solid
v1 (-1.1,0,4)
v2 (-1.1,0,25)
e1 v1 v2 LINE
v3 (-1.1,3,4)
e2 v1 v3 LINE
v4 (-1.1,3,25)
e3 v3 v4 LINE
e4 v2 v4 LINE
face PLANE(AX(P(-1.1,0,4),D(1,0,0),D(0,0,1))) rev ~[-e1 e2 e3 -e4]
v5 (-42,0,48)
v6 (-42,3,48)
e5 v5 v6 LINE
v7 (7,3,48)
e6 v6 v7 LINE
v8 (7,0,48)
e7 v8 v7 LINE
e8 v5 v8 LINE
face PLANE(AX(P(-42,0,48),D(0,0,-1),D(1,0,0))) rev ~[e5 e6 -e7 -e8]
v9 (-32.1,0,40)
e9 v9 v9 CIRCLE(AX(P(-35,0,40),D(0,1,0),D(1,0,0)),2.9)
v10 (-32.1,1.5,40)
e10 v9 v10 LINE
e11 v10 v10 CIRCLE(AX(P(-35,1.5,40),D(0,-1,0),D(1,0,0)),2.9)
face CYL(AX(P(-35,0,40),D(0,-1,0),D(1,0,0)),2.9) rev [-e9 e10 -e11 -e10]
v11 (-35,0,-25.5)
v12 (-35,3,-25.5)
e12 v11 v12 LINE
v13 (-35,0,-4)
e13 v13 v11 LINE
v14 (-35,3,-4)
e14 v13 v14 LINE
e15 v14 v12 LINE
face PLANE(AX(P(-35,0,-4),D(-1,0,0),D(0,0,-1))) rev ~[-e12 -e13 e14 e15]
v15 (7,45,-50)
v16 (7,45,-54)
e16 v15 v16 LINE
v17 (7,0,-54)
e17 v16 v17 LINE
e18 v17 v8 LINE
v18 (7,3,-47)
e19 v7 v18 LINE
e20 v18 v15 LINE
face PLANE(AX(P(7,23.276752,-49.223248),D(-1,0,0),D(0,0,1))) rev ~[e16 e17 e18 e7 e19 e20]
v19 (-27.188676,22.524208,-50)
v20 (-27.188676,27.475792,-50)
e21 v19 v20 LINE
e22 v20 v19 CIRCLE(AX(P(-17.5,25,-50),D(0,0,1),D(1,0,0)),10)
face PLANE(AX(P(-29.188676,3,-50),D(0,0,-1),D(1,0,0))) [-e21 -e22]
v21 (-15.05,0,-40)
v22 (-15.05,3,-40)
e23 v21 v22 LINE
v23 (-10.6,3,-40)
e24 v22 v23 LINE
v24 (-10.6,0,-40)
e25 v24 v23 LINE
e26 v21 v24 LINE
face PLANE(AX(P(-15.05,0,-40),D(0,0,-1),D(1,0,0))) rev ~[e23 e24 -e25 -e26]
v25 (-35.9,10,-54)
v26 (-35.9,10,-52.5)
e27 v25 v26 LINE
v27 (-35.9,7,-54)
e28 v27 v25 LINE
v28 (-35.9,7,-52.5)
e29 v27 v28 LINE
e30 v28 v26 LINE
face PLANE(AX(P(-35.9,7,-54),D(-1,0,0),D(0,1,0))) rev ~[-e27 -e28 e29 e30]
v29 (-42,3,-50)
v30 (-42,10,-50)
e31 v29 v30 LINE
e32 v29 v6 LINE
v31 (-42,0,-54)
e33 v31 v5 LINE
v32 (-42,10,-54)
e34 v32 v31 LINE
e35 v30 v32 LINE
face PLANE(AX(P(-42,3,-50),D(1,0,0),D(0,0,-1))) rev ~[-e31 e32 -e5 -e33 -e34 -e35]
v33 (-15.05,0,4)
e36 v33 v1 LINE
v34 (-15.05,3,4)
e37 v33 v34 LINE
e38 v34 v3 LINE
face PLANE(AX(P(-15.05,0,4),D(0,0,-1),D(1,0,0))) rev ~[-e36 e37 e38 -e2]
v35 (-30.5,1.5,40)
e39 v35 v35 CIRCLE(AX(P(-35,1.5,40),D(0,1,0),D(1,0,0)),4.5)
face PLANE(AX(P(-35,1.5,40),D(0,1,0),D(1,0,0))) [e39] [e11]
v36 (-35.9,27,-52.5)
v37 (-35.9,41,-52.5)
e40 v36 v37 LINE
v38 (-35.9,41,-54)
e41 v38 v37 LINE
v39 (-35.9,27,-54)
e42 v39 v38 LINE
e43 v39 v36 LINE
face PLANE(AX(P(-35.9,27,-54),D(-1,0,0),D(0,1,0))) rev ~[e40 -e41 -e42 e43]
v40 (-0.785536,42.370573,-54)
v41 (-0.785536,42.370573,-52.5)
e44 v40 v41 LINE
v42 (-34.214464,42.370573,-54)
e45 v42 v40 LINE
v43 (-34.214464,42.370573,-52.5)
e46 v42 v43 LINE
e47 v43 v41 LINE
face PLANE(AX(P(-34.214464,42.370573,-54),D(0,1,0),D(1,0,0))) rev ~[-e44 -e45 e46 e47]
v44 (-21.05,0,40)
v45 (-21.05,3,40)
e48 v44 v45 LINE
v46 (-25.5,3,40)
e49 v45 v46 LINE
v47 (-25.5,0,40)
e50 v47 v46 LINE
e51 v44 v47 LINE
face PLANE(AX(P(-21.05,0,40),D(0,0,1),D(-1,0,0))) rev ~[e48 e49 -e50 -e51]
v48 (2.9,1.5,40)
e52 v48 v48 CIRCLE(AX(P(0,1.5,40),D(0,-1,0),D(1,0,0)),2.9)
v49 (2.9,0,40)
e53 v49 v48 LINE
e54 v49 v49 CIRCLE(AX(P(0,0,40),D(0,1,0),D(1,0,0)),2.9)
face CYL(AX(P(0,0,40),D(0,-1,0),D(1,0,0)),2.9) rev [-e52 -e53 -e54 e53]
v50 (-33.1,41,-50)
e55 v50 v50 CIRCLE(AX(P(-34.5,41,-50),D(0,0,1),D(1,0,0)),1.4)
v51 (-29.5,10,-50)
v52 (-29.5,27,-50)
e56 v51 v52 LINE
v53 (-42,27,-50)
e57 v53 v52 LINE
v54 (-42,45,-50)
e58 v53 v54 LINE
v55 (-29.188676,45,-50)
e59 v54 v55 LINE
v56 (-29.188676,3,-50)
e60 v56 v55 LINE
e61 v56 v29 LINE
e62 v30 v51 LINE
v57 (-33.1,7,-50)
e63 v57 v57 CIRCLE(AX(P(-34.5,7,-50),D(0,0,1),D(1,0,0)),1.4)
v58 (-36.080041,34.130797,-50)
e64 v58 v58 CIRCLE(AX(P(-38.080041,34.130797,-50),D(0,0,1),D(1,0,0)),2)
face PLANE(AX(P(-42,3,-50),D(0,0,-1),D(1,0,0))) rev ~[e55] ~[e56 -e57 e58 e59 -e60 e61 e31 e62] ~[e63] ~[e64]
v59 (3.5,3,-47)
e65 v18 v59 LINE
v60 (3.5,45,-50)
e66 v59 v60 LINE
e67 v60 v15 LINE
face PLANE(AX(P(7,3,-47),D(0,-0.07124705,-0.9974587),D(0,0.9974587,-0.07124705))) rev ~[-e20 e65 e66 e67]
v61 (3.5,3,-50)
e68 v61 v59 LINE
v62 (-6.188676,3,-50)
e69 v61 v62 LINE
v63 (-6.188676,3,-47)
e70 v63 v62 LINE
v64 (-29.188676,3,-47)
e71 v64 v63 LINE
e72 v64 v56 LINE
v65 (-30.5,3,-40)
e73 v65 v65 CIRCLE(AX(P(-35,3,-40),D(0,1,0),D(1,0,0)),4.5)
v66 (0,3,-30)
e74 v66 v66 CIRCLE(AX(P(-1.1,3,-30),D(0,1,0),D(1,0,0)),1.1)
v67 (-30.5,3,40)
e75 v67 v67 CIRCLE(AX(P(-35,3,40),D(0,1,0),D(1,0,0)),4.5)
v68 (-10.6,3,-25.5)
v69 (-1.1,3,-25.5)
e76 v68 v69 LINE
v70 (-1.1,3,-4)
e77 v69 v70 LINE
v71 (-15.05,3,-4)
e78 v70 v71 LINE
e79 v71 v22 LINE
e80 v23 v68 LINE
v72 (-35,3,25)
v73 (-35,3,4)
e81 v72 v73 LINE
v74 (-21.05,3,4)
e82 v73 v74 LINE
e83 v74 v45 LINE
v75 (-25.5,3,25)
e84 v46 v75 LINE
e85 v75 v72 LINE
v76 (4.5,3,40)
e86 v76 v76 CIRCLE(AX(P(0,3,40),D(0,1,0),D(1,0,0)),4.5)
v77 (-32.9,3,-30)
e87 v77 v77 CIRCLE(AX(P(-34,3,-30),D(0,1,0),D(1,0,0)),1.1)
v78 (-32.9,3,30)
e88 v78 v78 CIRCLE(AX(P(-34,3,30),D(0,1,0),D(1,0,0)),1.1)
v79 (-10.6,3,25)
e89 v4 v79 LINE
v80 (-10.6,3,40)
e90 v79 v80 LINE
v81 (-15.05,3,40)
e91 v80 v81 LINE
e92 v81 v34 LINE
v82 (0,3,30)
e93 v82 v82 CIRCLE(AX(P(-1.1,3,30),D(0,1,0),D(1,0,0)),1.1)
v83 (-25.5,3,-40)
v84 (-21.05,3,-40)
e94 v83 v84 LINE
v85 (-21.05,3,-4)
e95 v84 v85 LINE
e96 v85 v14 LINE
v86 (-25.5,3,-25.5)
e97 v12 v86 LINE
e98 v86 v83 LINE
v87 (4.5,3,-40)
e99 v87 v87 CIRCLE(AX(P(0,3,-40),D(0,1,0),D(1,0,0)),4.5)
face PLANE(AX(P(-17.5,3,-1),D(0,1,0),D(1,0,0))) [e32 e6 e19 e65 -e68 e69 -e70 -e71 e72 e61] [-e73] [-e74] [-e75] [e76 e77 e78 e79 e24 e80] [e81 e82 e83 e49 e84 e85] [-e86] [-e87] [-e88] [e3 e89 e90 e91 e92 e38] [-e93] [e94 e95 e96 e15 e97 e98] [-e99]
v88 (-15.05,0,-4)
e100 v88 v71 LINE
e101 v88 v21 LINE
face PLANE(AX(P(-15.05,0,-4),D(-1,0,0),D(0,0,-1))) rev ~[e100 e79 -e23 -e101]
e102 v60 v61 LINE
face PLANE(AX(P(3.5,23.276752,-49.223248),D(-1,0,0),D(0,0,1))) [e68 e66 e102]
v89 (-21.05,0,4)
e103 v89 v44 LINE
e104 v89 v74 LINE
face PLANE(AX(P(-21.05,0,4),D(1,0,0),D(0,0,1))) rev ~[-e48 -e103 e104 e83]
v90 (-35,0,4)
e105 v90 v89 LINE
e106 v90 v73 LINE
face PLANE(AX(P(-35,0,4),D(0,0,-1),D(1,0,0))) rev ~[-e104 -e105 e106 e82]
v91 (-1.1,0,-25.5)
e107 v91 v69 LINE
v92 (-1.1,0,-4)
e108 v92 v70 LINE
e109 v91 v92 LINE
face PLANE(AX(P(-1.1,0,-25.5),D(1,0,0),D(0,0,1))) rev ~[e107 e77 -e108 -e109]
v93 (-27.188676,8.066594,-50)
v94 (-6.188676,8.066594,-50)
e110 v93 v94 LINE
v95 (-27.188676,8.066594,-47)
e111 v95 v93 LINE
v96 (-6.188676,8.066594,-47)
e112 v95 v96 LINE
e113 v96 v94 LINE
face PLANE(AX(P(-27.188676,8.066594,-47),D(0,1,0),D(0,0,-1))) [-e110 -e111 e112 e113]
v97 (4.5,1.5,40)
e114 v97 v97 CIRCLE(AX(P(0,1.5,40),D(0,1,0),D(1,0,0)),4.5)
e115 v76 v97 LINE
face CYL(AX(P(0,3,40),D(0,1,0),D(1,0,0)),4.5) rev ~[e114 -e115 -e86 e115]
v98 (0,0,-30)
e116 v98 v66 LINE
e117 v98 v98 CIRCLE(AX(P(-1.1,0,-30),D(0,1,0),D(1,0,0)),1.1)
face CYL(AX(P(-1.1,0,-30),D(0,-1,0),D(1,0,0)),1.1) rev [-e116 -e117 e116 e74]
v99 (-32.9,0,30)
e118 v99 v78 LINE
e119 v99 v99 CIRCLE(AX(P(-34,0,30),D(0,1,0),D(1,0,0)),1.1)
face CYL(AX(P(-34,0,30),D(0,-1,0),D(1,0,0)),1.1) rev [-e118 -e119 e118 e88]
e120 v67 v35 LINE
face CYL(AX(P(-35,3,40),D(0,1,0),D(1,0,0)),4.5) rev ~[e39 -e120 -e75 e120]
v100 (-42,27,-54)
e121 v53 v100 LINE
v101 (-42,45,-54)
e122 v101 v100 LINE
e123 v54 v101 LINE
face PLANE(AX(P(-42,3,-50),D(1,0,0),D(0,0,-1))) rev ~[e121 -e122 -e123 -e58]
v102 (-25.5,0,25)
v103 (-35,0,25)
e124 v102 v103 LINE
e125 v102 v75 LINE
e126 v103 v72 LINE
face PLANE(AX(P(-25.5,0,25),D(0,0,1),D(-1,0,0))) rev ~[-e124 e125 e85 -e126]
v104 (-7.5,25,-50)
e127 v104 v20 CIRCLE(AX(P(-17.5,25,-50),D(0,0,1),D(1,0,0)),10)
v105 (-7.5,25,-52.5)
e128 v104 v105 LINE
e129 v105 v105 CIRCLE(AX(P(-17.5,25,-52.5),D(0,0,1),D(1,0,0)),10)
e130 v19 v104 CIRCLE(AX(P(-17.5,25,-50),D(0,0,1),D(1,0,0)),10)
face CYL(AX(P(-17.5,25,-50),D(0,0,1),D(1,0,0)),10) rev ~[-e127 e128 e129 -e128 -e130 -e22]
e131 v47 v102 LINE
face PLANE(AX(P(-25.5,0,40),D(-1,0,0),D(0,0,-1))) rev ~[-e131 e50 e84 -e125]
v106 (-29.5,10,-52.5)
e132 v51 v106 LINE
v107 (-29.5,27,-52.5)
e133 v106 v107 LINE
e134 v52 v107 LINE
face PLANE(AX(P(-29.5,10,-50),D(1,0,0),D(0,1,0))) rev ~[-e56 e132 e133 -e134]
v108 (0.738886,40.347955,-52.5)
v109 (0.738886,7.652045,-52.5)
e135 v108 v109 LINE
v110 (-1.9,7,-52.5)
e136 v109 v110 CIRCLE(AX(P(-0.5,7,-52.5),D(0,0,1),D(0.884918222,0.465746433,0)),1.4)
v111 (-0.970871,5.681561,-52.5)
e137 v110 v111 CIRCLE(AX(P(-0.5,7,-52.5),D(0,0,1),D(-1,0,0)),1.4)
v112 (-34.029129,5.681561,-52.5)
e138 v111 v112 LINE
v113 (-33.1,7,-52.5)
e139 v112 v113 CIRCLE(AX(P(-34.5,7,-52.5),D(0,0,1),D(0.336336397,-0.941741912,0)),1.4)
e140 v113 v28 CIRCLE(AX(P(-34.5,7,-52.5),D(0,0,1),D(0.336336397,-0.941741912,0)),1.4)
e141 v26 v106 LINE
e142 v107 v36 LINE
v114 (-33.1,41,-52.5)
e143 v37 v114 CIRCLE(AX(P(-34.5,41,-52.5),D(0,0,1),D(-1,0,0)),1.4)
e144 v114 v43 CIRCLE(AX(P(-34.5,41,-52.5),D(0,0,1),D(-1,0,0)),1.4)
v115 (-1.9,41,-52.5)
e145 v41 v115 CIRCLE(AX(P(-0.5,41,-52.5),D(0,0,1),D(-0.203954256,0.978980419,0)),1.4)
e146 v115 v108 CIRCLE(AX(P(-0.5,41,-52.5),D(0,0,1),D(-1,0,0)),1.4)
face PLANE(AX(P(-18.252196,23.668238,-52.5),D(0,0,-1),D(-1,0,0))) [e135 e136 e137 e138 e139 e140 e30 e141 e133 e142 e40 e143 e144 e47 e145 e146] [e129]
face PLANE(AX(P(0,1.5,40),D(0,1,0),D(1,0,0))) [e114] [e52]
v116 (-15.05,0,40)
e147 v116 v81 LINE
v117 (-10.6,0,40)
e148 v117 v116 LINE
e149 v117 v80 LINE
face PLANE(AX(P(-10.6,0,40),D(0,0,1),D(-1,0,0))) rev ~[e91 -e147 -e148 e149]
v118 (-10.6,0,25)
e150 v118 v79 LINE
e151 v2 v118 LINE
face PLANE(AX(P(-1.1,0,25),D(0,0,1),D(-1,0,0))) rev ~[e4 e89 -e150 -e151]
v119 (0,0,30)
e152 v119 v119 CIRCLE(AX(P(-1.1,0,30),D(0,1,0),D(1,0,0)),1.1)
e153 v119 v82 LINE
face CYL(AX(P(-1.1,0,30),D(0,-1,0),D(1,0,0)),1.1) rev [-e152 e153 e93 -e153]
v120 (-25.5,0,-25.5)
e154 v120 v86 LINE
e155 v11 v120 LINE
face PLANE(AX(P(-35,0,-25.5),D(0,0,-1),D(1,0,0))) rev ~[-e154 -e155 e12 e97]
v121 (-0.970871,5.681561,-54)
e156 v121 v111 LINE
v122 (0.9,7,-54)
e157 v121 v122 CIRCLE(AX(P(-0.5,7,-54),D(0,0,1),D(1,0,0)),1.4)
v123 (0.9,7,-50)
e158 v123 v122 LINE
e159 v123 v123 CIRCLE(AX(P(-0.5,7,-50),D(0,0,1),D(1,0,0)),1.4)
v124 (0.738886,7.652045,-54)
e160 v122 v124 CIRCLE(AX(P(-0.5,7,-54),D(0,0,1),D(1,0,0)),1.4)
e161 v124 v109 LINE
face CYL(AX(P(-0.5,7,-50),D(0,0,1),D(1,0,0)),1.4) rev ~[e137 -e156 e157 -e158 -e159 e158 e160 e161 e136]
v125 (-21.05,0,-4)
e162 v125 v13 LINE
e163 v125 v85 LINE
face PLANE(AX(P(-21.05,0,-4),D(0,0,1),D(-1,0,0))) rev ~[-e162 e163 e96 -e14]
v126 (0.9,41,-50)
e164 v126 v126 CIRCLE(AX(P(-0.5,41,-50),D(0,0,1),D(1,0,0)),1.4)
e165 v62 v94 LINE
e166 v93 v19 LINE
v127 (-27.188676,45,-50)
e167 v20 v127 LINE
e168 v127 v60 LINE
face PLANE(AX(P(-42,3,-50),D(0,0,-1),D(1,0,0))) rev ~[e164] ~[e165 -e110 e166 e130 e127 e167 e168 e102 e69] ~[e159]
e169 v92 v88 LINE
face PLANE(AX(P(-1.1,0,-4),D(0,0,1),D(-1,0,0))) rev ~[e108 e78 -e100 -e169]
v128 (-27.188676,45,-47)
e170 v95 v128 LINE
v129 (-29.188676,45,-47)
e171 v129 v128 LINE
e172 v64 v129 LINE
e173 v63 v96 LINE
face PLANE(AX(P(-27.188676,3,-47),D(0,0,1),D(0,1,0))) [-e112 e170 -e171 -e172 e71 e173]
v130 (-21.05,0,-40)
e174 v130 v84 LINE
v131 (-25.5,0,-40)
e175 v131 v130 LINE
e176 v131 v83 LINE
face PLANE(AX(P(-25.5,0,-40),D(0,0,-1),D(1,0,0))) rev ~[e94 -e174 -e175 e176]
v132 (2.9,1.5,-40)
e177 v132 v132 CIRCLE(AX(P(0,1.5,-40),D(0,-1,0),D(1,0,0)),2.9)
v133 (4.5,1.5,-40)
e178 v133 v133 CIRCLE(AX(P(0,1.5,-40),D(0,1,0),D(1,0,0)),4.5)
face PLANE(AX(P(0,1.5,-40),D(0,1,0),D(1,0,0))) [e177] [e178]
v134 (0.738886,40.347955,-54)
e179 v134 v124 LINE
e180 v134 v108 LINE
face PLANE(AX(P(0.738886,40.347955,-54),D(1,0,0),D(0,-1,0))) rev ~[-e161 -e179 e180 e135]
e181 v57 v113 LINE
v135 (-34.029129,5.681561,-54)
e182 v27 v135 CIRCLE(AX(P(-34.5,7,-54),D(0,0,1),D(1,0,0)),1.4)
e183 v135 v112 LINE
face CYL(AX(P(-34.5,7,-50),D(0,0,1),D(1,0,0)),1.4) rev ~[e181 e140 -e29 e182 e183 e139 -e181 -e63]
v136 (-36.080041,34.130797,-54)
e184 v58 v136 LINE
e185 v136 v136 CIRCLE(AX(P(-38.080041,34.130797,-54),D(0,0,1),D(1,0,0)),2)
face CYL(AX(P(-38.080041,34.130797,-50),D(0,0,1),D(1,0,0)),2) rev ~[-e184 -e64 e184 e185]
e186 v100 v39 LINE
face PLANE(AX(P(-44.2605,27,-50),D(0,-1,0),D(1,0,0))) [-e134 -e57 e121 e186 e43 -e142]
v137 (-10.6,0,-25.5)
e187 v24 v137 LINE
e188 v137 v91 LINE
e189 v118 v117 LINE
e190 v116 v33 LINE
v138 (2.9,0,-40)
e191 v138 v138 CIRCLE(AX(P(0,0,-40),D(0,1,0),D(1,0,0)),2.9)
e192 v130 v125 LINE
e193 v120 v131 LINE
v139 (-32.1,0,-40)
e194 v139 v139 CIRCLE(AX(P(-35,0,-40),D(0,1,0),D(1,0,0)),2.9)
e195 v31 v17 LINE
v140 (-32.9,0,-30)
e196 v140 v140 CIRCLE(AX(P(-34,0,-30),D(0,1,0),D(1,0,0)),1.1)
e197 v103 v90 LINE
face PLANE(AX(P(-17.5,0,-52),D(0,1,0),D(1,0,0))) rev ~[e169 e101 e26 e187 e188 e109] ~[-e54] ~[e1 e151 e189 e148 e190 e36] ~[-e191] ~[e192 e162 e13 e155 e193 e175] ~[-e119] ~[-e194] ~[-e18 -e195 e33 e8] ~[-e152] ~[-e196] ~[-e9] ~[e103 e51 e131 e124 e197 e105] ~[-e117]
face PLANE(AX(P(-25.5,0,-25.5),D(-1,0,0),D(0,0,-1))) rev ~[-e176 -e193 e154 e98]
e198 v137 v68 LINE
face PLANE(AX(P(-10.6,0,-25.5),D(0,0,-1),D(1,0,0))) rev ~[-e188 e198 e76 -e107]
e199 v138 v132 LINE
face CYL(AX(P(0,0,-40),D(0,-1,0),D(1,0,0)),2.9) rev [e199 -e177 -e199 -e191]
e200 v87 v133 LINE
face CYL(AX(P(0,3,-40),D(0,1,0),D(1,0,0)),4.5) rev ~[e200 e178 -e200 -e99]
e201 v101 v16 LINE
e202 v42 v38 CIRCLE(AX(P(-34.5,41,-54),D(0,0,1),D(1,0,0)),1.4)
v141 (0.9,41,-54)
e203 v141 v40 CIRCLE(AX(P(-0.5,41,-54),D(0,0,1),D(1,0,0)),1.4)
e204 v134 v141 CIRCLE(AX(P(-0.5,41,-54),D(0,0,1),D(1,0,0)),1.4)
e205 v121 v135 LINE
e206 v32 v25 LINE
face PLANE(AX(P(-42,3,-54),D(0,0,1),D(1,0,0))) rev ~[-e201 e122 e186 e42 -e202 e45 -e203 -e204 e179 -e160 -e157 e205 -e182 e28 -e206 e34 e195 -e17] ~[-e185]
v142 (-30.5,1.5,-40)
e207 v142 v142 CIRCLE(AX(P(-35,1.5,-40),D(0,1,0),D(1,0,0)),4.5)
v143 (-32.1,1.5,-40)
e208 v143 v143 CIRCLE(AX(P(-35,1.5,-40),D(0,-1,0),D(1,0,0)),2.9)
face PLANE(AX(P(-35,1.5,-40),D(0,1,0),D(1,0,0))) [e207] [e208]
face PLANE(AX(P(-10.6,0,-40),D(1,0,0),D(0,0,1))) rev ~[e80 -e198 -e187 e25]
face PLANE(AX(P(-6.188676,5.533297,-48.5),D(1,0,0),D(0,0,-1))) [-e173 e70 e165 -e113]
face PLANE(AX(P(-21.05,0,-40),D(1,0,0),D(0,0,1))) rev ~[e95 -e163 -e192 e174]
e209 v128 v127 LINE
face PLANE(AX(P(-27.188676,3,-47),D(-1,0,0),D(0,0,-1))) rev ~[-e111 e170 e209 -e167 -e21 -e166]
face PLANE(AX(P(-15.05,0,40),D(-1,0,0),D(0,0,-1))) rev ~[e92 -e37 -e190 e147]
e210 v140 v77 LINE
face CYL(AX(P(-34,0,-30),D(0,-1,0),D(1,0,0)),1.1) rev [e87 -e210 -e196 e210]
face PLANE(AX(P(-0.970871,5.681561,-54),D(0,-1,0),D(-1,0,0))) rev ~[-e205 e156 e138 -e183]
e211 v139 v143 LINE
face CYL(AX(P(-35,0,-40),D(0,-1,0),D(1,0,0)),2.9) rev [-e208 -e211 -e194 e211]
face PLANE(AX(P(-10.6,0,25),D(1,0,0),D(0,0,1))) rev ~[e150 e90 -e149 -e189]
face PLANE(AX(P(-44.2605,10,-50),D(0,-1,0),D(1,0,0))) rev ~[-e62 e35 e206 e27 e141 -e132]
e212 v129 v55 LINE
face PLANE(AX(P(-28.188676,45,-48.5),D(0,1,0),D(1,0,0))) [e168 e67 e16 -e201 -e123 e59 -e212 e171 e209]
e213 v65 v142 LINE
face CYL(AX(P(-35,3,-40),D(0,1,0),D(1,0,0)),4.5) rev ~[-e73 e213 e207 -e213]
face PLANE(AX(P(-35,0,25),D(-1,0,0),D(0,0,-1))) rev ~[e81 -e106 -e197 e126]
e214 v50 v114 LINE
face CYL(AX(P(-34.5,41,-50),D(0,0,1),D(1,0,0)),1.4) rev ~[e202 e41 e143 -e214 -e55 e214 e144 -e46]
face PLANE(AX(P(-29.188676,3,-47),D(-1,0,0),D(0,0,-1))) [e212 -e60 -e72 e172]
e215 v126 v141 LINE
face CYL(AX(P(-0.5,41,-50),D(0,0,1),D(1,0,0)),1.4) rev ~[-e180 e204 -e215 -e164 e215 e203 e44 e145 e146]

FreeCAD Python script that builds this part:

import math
import FreeCAD as App
import Part
import Sketcher
from FreeCAD import Vector
Q = App.Units.Quantity

doc = App.newDocument("Part")
params = doc.addObject("Spreadsheet::Sheet", "Params")
for row, (alias, value) in enumerate([
    ("sketch1_diameter", "5.8 mm"),
    ("sketch1_diameter2", "2.2 mm"),
    ("sketch1_width", "49 mm"),
    ("sketch1_height", "98 mm"),
    ("sketch1_height2", "21 mm"),
    ("pad1_length", "3 mm"),
    ("sketch2_diameter", "9 mm"),
    ("pocket1_length", "1.5 mm"),
    ("sketch3_width", "49 mm"),
    ("sketch3_height", "4 mm"),
    ("pad2_length", "42 mm"),
    ("pad2_length2", "3 mm"),
    ("sketch4_diameter", "20 mm"),
    ("sketch4_diameter2", "4 mm"),
    ("sketch4_diameter3", "2.8 mm"),
    ("sketch4_height", "17 mm"),
    ("sketch5_diameter", "20 mm"),
    ("sketch5_radius", "1.4 mm"),
    ("sketch5_height", "3 mm"),
    ("sketch5_height2", "17 mm"),
    ("sketch5_height3", "14 mm"),
    ("pocket3_length", "1.5 mm"),
    ("sketch6_width", "42 mm"),
    ("sketch6_height", "3 mm"),
    ("pad3_length", "3.5 mm"),
    ("sketch7_width", "2 mm"),
    ("sketch7_height", "3 mm"),
    ("pad4_length", "42 mm"),
    ("sketch8_height", "3 mm"),
    ("pad5_length", "21 mm"),
], start=1):
    params.set(f"A{row}", alias)
    params.set(f"B{row}", "=" + value)
    params.setAlias(f"B{row}", alias)

body = doc.addObject("PartDesign::Body", "Body")

sketch1 = doc.addObject("Sketcher::SketchObject", "Sketch")
body.addObject(sketch1)
sketch1.AttachmentSupport = (doc.XZ_Plane, [""])
sketch1.MapMode = "FlatFace"
sketch1.addGeometry([
    Part.LineSegment(Vector(-42, 48, 0), Vector(7, 48, 0)),
    Part.LineSegment(Vector(7, 48, 0), Vector(7, -50, 0)),
    Part.LineSegment(Vector(7, -50, 0), Vector(-42, -50, 0)),
    Part.LineSegment(Vector(-42, -50, 0), Vector(-42, 48, 0)),
    Part.Circle(Vector(-35, 40, 0), Vector(0, 0, 1), 2.9),
    Part.Circle(Vector(-34, 30, 0), Vector(0, 0, 1), 1.1),
    Part.LineSegment(Vector(-25.5, 25, 0), Vector(-35, 25, 0)),
    Part.LineSegment(Vector(-35, 25, 0), Vector(-35, 4, 0)),
    Part.LineSegment(Vector(-35, 4, 0), Vector(-21.1, 4, 0)),
    Part.LineSegment(Vector(-21.1, 4, 0), Vector(-21.1, 40, 0)),
    Part.LineSegment(Vector(-21.1, 40, 0), Vector(-25.5, 40, 0)),
    Part.LineSegment(Vector(-25.5, 40, 0), Vector(-25.5, 25, 0)),
    Part.LineSegment(Vector(-15.1, 4, 0), Vector(-1.1, 4, 0)),
    Part.LineSegment(Vector(-1.1, 4, 0), Vector(-1.1, 25, 0)),
    Part.LineSegment(Vector(-1.1, 25, 0), Vector(-10.6, 25, 0)),
    Part.LineSegment(Vector(-10.6, 25, 0), Vector(-10.6, 40, 0)),
    Part.LineSegment(Vector(-10.6, 40, 0), Vector(-15.1, 40, 0)),
    Part.LineSegment(Vector(-15.1, 40, 0), Vector(-15.1, 4, 0)),
    Part.Circle(Vector(0, 40, 0), Vector(0, 0, 1), 2.9),
    Part.Circle(Vector(-1.1, 30, 0), Vector(0, 0, 1), 1.1),
    Part.Circle(Vector(-34, -30, 0), Vector(0, 0, 1), 1.1),
    Part.LineSegment(Vector(-21.1, -40, 0), Vector(-21.1, -4, 0)),
    Part.LineSegment(Vector(-21.1, -4, 0), Vector(-35, -4, 0)),
    Part.LineSegment(Vector(-35, -4, 0), Vector(-35, -25.5, 0)),
    Part.LineSegment(Vector(-35, -25.5, 0), Vector(-25.5, -25.5, 0)),
    Part.LineSegment(Vector(-25.5, -25.5, 0), Vector(-25.5, -40, 0)),
    Part.LineSegment(Vector(-25.5, -40, 0), Vector(-21.1, -40, 0)),
    Part.Circle(Vector(-35, -40, 0), Vector(0, 0, 1), 2.9),
    Part.LineSegment(Vector(-10.6, -40, 0), Vector(-10.6, -25.5, 0)),
    Part.LineSegment(Vector(-10.6, -25.5, 0), Vector(-1.1, -25.5, 0)),
    Part.LineSegment(Vector(-1.1, -25.5, 0), Vector(-1.1, -4, 0)),
    Part.LineSegment(Vector(-1.1, -4, 0), Vector(-15.1, -4, 0)),
    Part.LineSegment(Vector(-15.1, -4, 0), Vector(-15.1, -40, 0)),
    Part.LineSegment(Vector(-15.1, -40, 0), Vector(-10.6, -40, 0)),
    Part.Circle(Vector(-1.1, -30, 0), Vector(0, 0, 1), 1.1),
    Part.Circle(Vector(0, -40, 0), Vector(0, 0, 1), 2.9),
], False)
sketch1.addConstraint([
    Sketcher.Constraint("Coincident", 0, 2, 1, 1),
    Sketcher.Constraint("Coincident", 1, 2, 2, 1),
    Sketcher.Constraint("Coincident", 2, 2, 3, 1),
    Sketcher.Constraint("Coincident", 3, 2, 0, 1),
    Sketcher.Constraint("Coincident", 6, 2, 7, 1),
    Sketcher.Constraint("Coincident", 7, 2, 8, 1),
    Sketcher.Constraint("Coincident", 8, 2, 9, 1),
    Sketcher.Constraint("Coincident", 9, 2, 10, 1),
    Sketcher.Constraint("Coincident", 10, 2, 11, 1),
    Sketcher.Constraint("Coincident", 11, 2, 6, 1),
    Sketcher.Constraint("Coincident", 12, 2, 13, 1),
    Sketcher.Constraint("Coincident", 13, 2, 14, 1),
    Sketcher.Constraint("Coincident", 14, 2, 15, 1),
    Sketcher.Constraint("Coincident", 15, 2, 16, 1),
    Sketcher.Constraint("Coincident", 16, 2, 17, 1),
    Sketcher.Constraint("Coincident", 17, 2, 12, 1),
    Sketcher.Constraint("Coincident", 21, 2, 22, 1),
    Sketcher.Constraint("Coincident", 22, 2, 23, 1),
    Sketcher.Constraint("Coincident", 23, 2, 24, 1),
    Sketcher.Constraint("Coincident", 24, 2, 25, 1),
    Sketcher.Constraint("Coincident", 25, 2, 26, 1),
    Sketcher.Constraint("Coincident", 26, 2, 21, 1),
    Sketcher.Constraint("Coincident", 28, 2, 29, 1),
    Sketcher.Constraint("Coincident", 29, 2, 30, 1),
    Sketcher.Constraint("Coincident", 30, 2, 31, 1),
    Sketcher.Constraint("Coincident", 31, 2, 32, 1),
    Sketcher.Constraint("Coincident", 32, 2, 33, 1),
    Sketcher.Constraint("Coincident", 33, 2, 28, 1),
    Sketcher.Constraint("Horizontal", 0),
    Sketcher.Constraint("Vertical", 1),
    Sketcher.Constraint("Horizontal", 2),
    Sketcher.Constraint("Vertical", 3),
    Sketcher.Constraint("Horizontal", 6),
    Sketcher.Constraint("Vertical", 7),
    Sketcher.Constraint("Horizontal", 8),
    Sketcher.Constraint("Vertical", 9),
    Sketcher.Constraint("Horizontal", 10),
    Sketcher.Constraint("Vertical", 11),
    Sketcher.Constraint("Horizontal", 12),
    Sketcher.Constraint("Vertical", 13),
    Sketcher.Constraint("Horizontal", 14),
    Sketcher.Constraint("Vertical", 15),
    Sketcher.Constraint("Horizontal", 16),
    Sketcher.Constraint("Vertical", 17),
    Sketcher.Constraint("Vertical", 21),
    Sketcher.Constraint("Horizontal", 22),
    Sketcher.Constraint("Vertical", 23),
    Sketcher.Constraint("Horizontal", 24),
    Sketcher.Constraint("Vertical", 25),
    Sketcher.Constraint("Horizontal", 26),
    Sketcher.Constraint("Vertical", 28),
    Sketcher.Constraint("Horizontal", 29),
    Sketcher.Constraint("Vertical", 30),
    Sketcher.Constraint("Horizontal", 31),
    Sketcher.Constraint("Vertical", 32),
    Sketcher.Constraint("Horizontal", 33),
    Sketcher.Constraint("Equal", 4, 18),
    Sketcher.Constraint("Equal", 5, 19),
    Sketcher.Constraint("Equal", 19, 20),
    Sketcher.Constraint("Equal", 18, 27),
    Sketcher.Constraint("Equal", 20, 34),
    Sketcher.Constraint("Equal", 27, 35),
    Sketcher.Constraint("Symmetric", 18, 3, 35, 3, -1, 1),
    Sketcher.Constraint("Symmetric", 5, 3, 20, 3, -1),
    Sketcher.Constraint("Symmetric", 4, 3, 27, 3, -1),
    Sketcher.Constraint("Symmetric", 19, 3, 34, 3, -1),
    Sketcher.Constraint("Symmetric", 8, 2, 21, 2, -1),
    Sketcher.Constraint("Symmetric", 10, 2, 25, 2, -1),
    Sketcher.Constraint("Symmetric", 12, 2, 30, 2, -1),
    Sketcher.Constraint("Symmetric", 16, 2, 32, 2, -1),
    Sketcher.Constraint("PointOnObject", 18, 3, -2),
    Sketcher.Constraint("Horizontal", 4, 3, 18, 3),
    Sketcher.Constraint("Horizontal", 5, 3, 19, 3),
    Sketcher.Constraint("Horizontal", 18, 3, 9, 2),
    Sketcher.Constraint("Horizontal", 8, 2, 12, 2),
    Sketcher.Constraint("Horizontal", 11, 2, 13, 2),
    Sketcher.Constraint("Horizontal", 10, 2, 15, 2),
    Sketcher.Constraint("Horizontal", 24, 2, 28, 2),
    Sketcher.Constraint("Vertical", 27, 3, 6, 2),
    Sketcher.Constraint("Vertical", 34, 3, 12, 2),
    Sketcher.Constraint("Vertical", 7, 2, 22, 2),
    Sketcher.Constraint("Vertical", 15, 2, 28, 2),
    Sketcher.Constraint("Equal", 8, 12),
    Sketcher.Constraint("Equal", 6, 14),
    Sketcher.Constraint("Diameter", 4, Q("5.8 mm")),
    Sketcher.Constraint("Diameter", 5, Q("2.2 mm")),
    Sketcher.Constraint("DistanceX", 0, 1, 0, 2, Q("49 mm")),
    Sketcher.Constraint("DistanceY", 1, 2, 1, 1, Q("98 mm")),
    Sketcher.Constraint("DistanceY", 7, 2, 7, 1, Q("21 mm")),
    Sketcher.Constraint("DistanceY", 9, 1, 9, 2, Q("36 mm")),
    Sketcher.Constraint("DistanceX", 6, 2, 6, 1, Q("9.5 mm")),
    Sketcher.Constraint("DistanceY", 23, 2, 23, 1, Q("21.5 mm")),
    Sketcher.Constraint("DistanceX", 4, 3, -1, 1, Q("35 mm")),
    Sketcher.Constraint("DistanceY", -1, 1, 4, 3, Q("40 mm")),
    Sketcher.Constraint("DistanceX", 5, 3, -1, 1, Q("34 mm")),
    Sketcher.Constraint("DistanceY", -1, 1, 5, 3, Q("30 mm")),
    Sketcher.Constraint("DistanceX", -1, 1, 0, 2, Q("7 mm")),
    Sketcher.Constraint("DistanceY", -1, 1, 0, 2, Q("48 mm")),
    Sketcher.Constraint("DistanceX", 9, 2, 16, 2, Q("6 mm")),
    Sketcher.Constraint("DistanceX", 8, 1, 8, 2, Q("13.95 mm")),
])
sketch1.setExpression("Constraints[84]", "Params.sketch1_diameter")
sketch1.setExpression("Constraints[85]", "Params.sketch1_diameter2")
sketch1.setExpression("Constraints[86]", "Params.sketch1_width")
sketch1.setExpression("Constraints[87]", "Params.sketch1_height")
sketch1.setExpression("Constraints[88]", "Params.sketch1_height2")
pad1 = doc.addObject("PartDesign::Pad", "Pad")
body.addObject(pad1)
pad1.Profile = sketch1
pad1.setExpression("Length", "Params.pad1_length")
pad1.Reversed = True

sketch2 = doc.addObject("Sketcher::SketchObject", "Sketch001")
body.addObject(sketch2)
sketch2.AttachmentSupport = (doc.XZ_Plane, [""])
sketch2.MapMode = "FlatFace"
sketch2.AttachmentOffset = App.Placement(Vector(0, 0, -3), App.Rotation())
sketch2.addGeometry([
    Part.Circle(Vector(-35, -40, 0), Vector(0, 0, 1), 4.5),
    Part.Circle(Vector(0, -40, 0), Vector(0, 0, 1), 4.5),
    Part.Circle(Vector(0, 40, 0), Vector(0, 0, 1), 4.5),
    Part.Circle(Vector(-35, 40, 0), Vector(0, 0, 1), 4.5),
], False)
sketch2.addConstraint([
    Sketcher.Constraint("Equal", 0, 1),
    Sketcher.Constraint("Equal", 1, 2),
    Sketcher.Constraint("Equal", 2, 3),
    Sketcher.Constraint("Symmetric", 1, 3, 2, 3, -1, 1),
    Sketcher.Constraint("Symmetric", 0, 3, 3, 3, -1),
    Sketcher.Constraint("PointOnObject", 1, 3, -2),
    Sketcher.Constraint("Horizontal", 0, 3, 1, 3),
    Sketcher.Constraint("Diameter", 0, Q("9 mm")),
    Sketcher.Constraint("DistanceX", 0, 3, -1, 1, Q("35 mm")),
    Sketcher.Constraint("DistanceY", 0, 3, -1, 1, Q("40 mm")),
])
sketch2.setExpression("Constraints[7]", "Params.sketch2_diameter")
pocket1 = doc.addObject("PartDesign::Pocket", "Pocket")
body.addObject(pocket1)
pocket1.Profile = sketch2
pocket1.setExpression("Length", "Params.pocket1_length")
pocket1.Reversed = True

sketch3 = doc.addObject("Sketcher::SketchObject", "Sketch002")
body.addObject(sketch3)
sketch3.AttachmentSupport = (doc.XZ_Plane, [""])
sketch3.MapMode = "FlatFace"
sketch3.AttachmentOffset = App.Placement(Vector(0, 0, -3), App.Rotation())
sketch3.addGeometry([
    Part.LineSegment(Vector(-42, -54, 0), Vector(-42, -50, 0)),
    Part.LineSegment(Vector(-42, -50, 0), Vector(7, -50, 0)),
    Part.LineSegment(Vector(7, -50, 0), Vector(7, -54, 0)),
    Part.LineSegment(Vector(7, -54, 0), Vector(-42, -54, 0)),
], False)
sketch3.addConstraint([
    Sketcher.Constraint("Coincident", 0, 2, 1, 1),
    Sketcher.Constraint("Coincident", 1, 2, 2, 1),
    Sketcher.Constraint("Coincident", 2, 2, 3, 1),
    Sketcher.Constraint("Coincident", 3, 2, 0, 1),
    Sketcher.Constraint("Vertical", 0),
    Sketcher.Constraint("Horizontal", 1),
    Sketcher.Constraint("Vertical", 2),
    Sketcher.Constraint("Horizontal", 3),
    Sketcher.Constraint("DistanceX", 1, 1, 1, 2, Q("49 mm")),
    Sketcher.Constraint("DistanceY", 0, 1, 0, 2, Q("4 mm")),
    Sketcher.Constraint("DistanceX", 0, 2, -1, 1, Q("42 mm")),
    Sketcher.Constraint("DistanceY", 0, 2, -1, 1, Q("50 mm")),
])
sketch3.setExpression("Constraints[8]", "Params.sketch3_width")
sketch3.setExpression("Constraints[9]", "Params.sketch3_height")
pad2 = doc.addObject("PartDesign::Pad", "Pad001")
body.addObject(pad2)
pad2.Profile = sketch3
pad2.Type = "TwoLengths"
pad2.setExpression("Length", "Params.pad2_length")
pad2.setExpression("Length2", "Params.pad2_length2")
pad2.Reversed = True

sketch4 = doc.addObject("Sketcher::SketchObject", "Sketch003")
body.addObject(sketch4)
sketch4.AttachmentSupport = (doc.XY_Plane, [""])
sketch4.MapMode = "FlatFace"
sketch4.AttachmentOffset = App.Placement(Vector(0, 0, -50), App.Rotation())
sketch4.addGeometry([
    Part.Circle(Vector(-34.5, 7, 0), Vector(0, 0, 1), 1.4),
    Part.LineSegment(Vector(-44.3, 27, 0), Vector(-44.3, 10, 0)),
    Part.LineSegment(Vector(-44.3, 10, 0), Vector(-29.5, 10, 0)),
    Part.LineSegment(Vector(-29.5, 10, 0), Vector(-29.5, 27, 0)),
    Part.LineSegment(Vector(-29.5, 27, 0), Vector(-44.3, 27, 0)),
    Part.Circle(Vector(-34.5, 41, 0), Vector(0, 0, 1), 1.4),
    Part.Circle(Vector(-0.5, 41, 0), Vector(0, 0, 1), 1.4),
    Part.Circle(Vector(-0.5, 7, 0), Vector(0, 0, 1), 1.4),
    Part.Circle(Vector(-17.5, 25, 0), Vector(0, 0, 1), 10),
    Part.Circle(Vector(-38.1, 34.1, 0), Vector(0, 0, 1), 2),
], False)
sketch4.addConstraint([
    Sketcher.Constraint("Coincident", 1, 2, 2, 1),
    Sketcher.Constraint("Coincident", 2, 2, 3, 1),
    Sketcher.Constraint("Coincident", 3, 2, 4, 1),
    Sketcher.Constraint("Coincident", 4, 2, 1, 1),
    Sketcher.Constraint("Vertical", 1),
    Sketcher.Constraint("Horizontal", 2),
    Sketcher.Constraint("Vertical", 3),
    Sketcher.Constraint("Horizontal", 4),
    Sketcher.Constraint("Equal", 0, 5),
    Sketcher.Constraint("Equal", 5, 6),
    Sketcher.Constraint("Equal", 6, 7),
    Sketcher.Constraint("Horizontal", 5, 3, 6, 3),
    Sketcher.Constraint("Horizontal", 0, 3, 7, 3),
    Sketcher.Constraint("Vertical", 0, 3, 5, 3),
    Sketcher.Constraint("Vertical", 6, 3, 7, 3),
    Sketcher.Constraint("Diameter", 8, Q("20 mm")),
    Sketcher.Constraint("Diameter", 9, Q("4 mm")),
    Sketcher.Constraint("Diameter", 0, Q("2.8 mm")),
    Sketcher.Constraint("DistanceY", 1, 2, 1, 1, Q("17 mm")),
    Sketcher.Constraint("DistanceY", -1, 1, 0, 3, Q("7 mm")),
    Sketcher.Constraint("DistanceY", -1, 1, 5, 3, Q("41 mm")),
    Sketcher.Constraint("DistanceY", -1, 1, 8, 3, Q("25 mm")),
    Sketcher.Constraint("DistanceY", -1, 1, 1, 2, Q("10 mm")),
    Sketcher.Constraint("DistanceX", 5, 3, 6, 3, Q("34 mm")),
    Sketcher.Constraint("DistanceX", 5, 3, 8, 3, Q("17 mm")),
    Sketcher.Constraint("DistanceX", 0, 3, 2, 2, Q("5 mm")),
    Sketcher.Constraint("DistanceX", 0, 3, -1, 1, Q("34.5 mm")),
    Sketcher.Constraint("DistanceX", 2, 1, 2, 2, Q("14.7605 mm")),
    Sketcher.Constraint("DistanceX", 9, 3, -1, 1, Q("38.080041 mm")),
    Sketcher.Constraint("DistanceY", -1, 1, 9, 3, Q("34.130797 mm")),
])
sketch4.setExpression("Constraints[15]", "Params.sketch4_diameter")
sketch4.setExpression("Constraints[16]", "Params.sketch4_diameter2")
sketch4.setExpression("Constraints[17]", "Params.sketch4_diameter3")
sketch4.setExpression("Constraints[18]", "Params.sketch4_height")
pocket2 = doc.addObject("PartDesign::Pocket", "Pocket001")
body.addObject(pocket2)
pocket2.Profile = sketch4
pocket2.Type = "ThroughAll"

sketch5 = doc.addObject("Sketcher::SketchObject", "Sketch004")
body.addObject(sketch5)
sketch5.AttachmentSupport = (doc.XY_Plane, [""])
sketch5.MapMode = "FlatFace"
sketch5.AttachmentOffset = App.Placement(Vector(0, 0, -54), App.Rotation())
sketch5.addGeometry([
    Part.ArcOfCircle(Part.Circle(Vector(-0.5, 41, 0), Vector(0, 0, 1), 1.4), math.radians(180), math.radians(332)),
    Part.LineSegment(Vector(0.7, 40.3, 0), Vector(0.7, 7.7, 0)),
    Part.ArcOfCircle(Part.Circle(Vector(-0.5, 7, 0), Vector(0, 0, 1), 1.4), math.radians(28), math.radians(180)),
    Part.ArcOfCircle(Part.Circle(Vector(-0.5, 7, 0), Vector(0, 0, 1), 1.4), math.radians(180), math.radians(250)),
    Part.LineSegment(Vector(-1, 5.7, 0), Vector(-34, 5.7, 0)),
    Part.ArcOfCircle(Part.Circle(Vector(-34.5, 7, 0), Vector(0, 0, 1), 1.4), math.radians(-70), math.radians(180)),
    Part.LineSegment(Vector(-35.9, 7, 0), Vector(-35.9, 10, 0)),
    Part.LineSegment(Vector(-35.9, 10, 0), Vector(-29.5, 10, 0)),
    Part.LineSegment(Vector(-29.5, 10, 0), Vector(-29.5, 27, 0)),
    Part.LineSegment(Vector(-29.5, 27, 0), Vector(-35.9, 27, 0)),
    Part.LineSegment(Vector(-35.9, 27, 0), Vector(-35.9, 41, 0)),
    Part.ArcOfCircle(Part.Circle(Vector(-34.5, 41, 0), Vector(0, 0, 1), 1.4), math.radians(-180), math.radians(78)),
    Part.LineSegment(Vector(-34.2, 42.4, 0), Vector(-0.8, 42.4, 0)),
    Part.ArcOfCircle(Part.Circle(Vector(-0.5, 41, 0), Vector(0, 0, 1), 1.4), math.radians(102), math.radians(180)),
    Part.Circle(Vector(-17.5, 25, 0), Vector(0, 0, 1), 10),
], False)
sketch5.addConstraint([
    Sketcher.Constraint("Coincident", 0, 2, 1, 1),
    Sketcher.Constraint("Coincident", 1, 2, 2, 1),
    Sketcher.Constraint("Tangent", 2, 2, 3, 1),
    Sketcher.Constraint("Coincident", 3, 2, 4, 1),
    Sketcher.Constraint("Coincident", 4, 2, 5, 1),
    Sketcher.Constraint("Tangent", 5, 2, 6, 1),
    Sketcher.Constraint("Coincident", 6, 2, 7, 1),
    Sketcher.Constraint("Coincident", 7, 2, 8, 1),
    Sketcher.Constraint("Coincident", 8, 2, 9, 1),
    Sketcher.Constraint("Coincident", 9, 2, 10, 1),
    Sketcher.Constraint("Tangent", 10, 2, 11, 1),
    Sketcher.Constraint("Coincident", 11, 2, 12, 1),
    Sketcher.Constraint("Coincident", 12, 2, 13, 1),
    Sketcher.Constraint("Tangent", 13, 2, 0, 1),
    Sketcher.Constraint("Vertical", 1),
    Sketcher.Constraint("Horizontal", 4),
    Sketcher.Constraint("Vertical", 6),
    Sketcher.Constraint("Horizontal", 7),
    Sketcher.Constraint("Vertical", 8),
    Sketcher.Constraint("Horizontal", 9),
    Sketcher.Constraint("Vertical", 10),
    Sketcher.Constraint("Horizontal", 12),
    Sketcher.Constraint("Equal", 0, 2),
    Sketcher.Constraint("Equal", 2, 3),
    Sketcher.Constraint("Equal", 3, 5),
    Sketcher.Constraint("Equal", 5, 11),
    Sketcher.Constraint("Equal", 11, 13),
    Sketcher.Constraint("Horizontal", 3, 3, 5, 3),
    Sketcher.Constraint("Horizontal", 0, 3, 11, 3),
    Sketcher.Constraint("Horizontal", 5, 3, 2, 2),
    Sketcher.Constraint("Horizontal", 10, 2, 13, 2),
    Sketcher.Constraint("Vertical", 0, 3, 2, 3),
    Sketcher.Constraint("Vertical", 5, 3, 11, 3),
    Sketcher.Constraint("Diameter", 14, Q("20 mm")),
    Sketcher.Constraint("Radius", 0, Q("1.4 mm")),
    Sketcher.Constraint("DistanceY", 6, 1, 6, 2, Q("3 mm")),
    Sketcher.Constraint("DistanceY", 8, 1, 8, 2, Q("17 mm")),
    Sketcher.Constraint("DistanceY", 10, 1, 10, 2, Q("14 mm")),
    Sketcher.Constraint("DistanceX", 7, 1, 7, 2, Q("6.4 mm")),
    Sketcher.Constraint("DistanceY", -1, 1, 0, 3, Q("41 mm")),
    Sketcher.Constraint("DistanceY", -1, 1, 14, 3, Q("25 mm")),
    Sketcher.Constraint("DistanceX", 5, 3, 2, 3, Q("34 mm")),
    Sketcher.Constraint("DistanceX", 14, 3, 0, 3, Q("17 mm")),
    Sketcher.Constraint("DistanceX", 0, 3, -1, 1, Q("0.5 mm")),
    Sketcher.Constraint("DistanceX", 4, 2, 4, 1, Q("33.058258 mm")),
    Sketcher.Constraint("DistanceX", 12, 1, 12, 2, Q("33.428928 mm")),
    Sketcher.Constraint("DistanceY", 1, 2, 1, 1, Q("32.69591 mm")),
])
sketch5.setExpression("Constraints[33]", "Params.sketch5_diameter")
sketch5.setExpression("Constraints[34]", "Params.sketch5_radius")
sketch5.setExpression("Constraints[35]", "Params.sketch5_height")
sketch5.setExpression("Constraints[36]", "Params.sketch5_height2")
sketch5.setExpression("Constraints[37]", "Params.sketch5_height3")
pocket3 = doc.addObject("PartDesign::Pocket", "Pocket002")
body.addObject(pocket3)
pocket3.Profile = sketch5
pocket3.setExpression("Length", "Params.pocket3_length")
pocket3.Reversed = True

sketch6 = doc.addObject("Sketcher::SketchObject", "Sketch005")
body.addObject(sketch6)
sketch6.AttachmentSupport = (doc.YZ_Plane, [""])
sketch6.MapMode = "FlatFace"
sketch6.AttachmentOffset = App.Placement(Vector(0, 0, 7), App.Rotation())
sketch6.addGeometry([
    Part.LineSegment(Vector(3, -47, 0), Vector(3, -50, 0)),
    Part.LineSegment(Vector(3, -50, 0), Vector(45, -50, 0)),
    Part.LineSegment(Vector(45, -50, 0), Vector(3, -47, 0)),
], False)
sketch6.addConstraint([
    Sketcher.Constraint("Coincident", 0, 2, 1, 1),
    Sketcher.Constraint("Coincident", 1, 2, 2, 1),
    Sketcher.Constraint("Coincident", 2, 2, 0, 1),
    Sketcher.Constraint("Vertical", 0),
    Sketcher.Constraint("Horizontal", 1),
    Sketcher.Constraint("DistanceX", 1, 1, 1, 2, Q("42 mm")),
    Sketcher.Constraint("DistanceY", 0, 2, 0, 1, Q("3 mm")),
    Sketcher.Constraint("DistanceX", -1, 1, 0, 2, Q("3 mm")),
    Sketcher.Constraint("DistanceY", 0, 2, -1, 1, Q("50 mm")),
])
sketch6.setExpression("Constraints[5]", "Params.sketch6_width")
sketch6.setExpression("Constraints[6]", "Params.sketch6_height")
pad3 = doc.addObject("PartDesign::Pad", "Pad002")
body.addObject(pad3)
pad3.Profile = sketch6
pad3.setExpression("Length", "Params.pad3_length")
pad3.Reversed = True

sketch7 = doc.addObject("Sketcher::SketchObject", "Sketch006")
body.addObject(sketch7)
sketch7.AttachmentSupport = (doc.XZ_Plane, [""])
sketch7.MapMode = "FlatFace"
sketch7.AttachmentOffset = App.Placement(Vector(0, 0, -3), App.Rotation())
sketch7.addGeometry([
    Part.LineSegment(Vector(-29.2, -50, 0), Vector(-29.2, -47, 0)),
    Part.LineSegment(Vector(-29.2, -47, 0), Vector(-27.2, -47, 0)),
    Part.LineSegment(Vector(-27.2, -47, 0), Vector(-27.2, -50, 0)),
    Part.LineSegment(Vector(-27.2, -50, 0), Vector(-29.2, -50, 0)),
], False)
sketch7.addConstraint([
    Sketcher.Constraint("Coincident", 0, 2, 1, 1),
    Sketcher.Constraint("Coincident", 1, 2, 2, 1),
    Sketcher.Constraint("Coincident", 2, 2, 3, 1),
    Sketcher.Constraint("Coincident", 3, 2, 0, 1),
    Sketcher.Constraint("Vertical", 0),
    Sketcher.Constraint("Horizontal", 1),
    Sketcher.Constraint("Vertical", 2),
    Sketcher.Constraint("Horizontal", 3),
    Sketcher.Constraint("DistanceX", 1, 1, 1, 2, Q("2 mm")),
    Sketcher.Constraint("DistanceY", 0, 1, 0, 2, Q("3 mm")),
    Sketcher.Constraint("DistanceY", 0, 2, -1, 1, Q("47 mm")),
    Sketcher.Constraint("DistanceX", 0, 2, -1, 1, Q("29.188676 mm")),
])
sketch7.setExpression("Constraints[8]", "Params.sketch7_width")
sketch7.setExpression("Constraints[9]", "Params.sketch7_height")
pad4 = doc.addObject("PartDesign::Pad", "Pad003")
body.addObject(pad4)
pad4.Profile = sketch7
pad4.setExpression("Length", "Params.pad4_length")
pad4.Reversed = True

sketch8 = doc.addObject("Sketcher::SketchObject", "Sketch007")
body.addObject(sketch8)
sketch8.AttachmentSupport = (doc.YZ_Plane, [""])
sketch8.MapMode = "FlatFace"
sketch8.AttachmentOffset = App.Placement(Vector(0, 0, -27.188676), App.Rotation())
sketch8.addGeometry([
    Part.LineSegment(Vector(8.1, -47, 0), Vector(3, -47, 0)),
    Part.LineSegment(Vector(3, -47, 0), Vector(3, -50, 0)),
    Part.LineSegment(Vector(3, -50, 0), Vector(8.1, -50, 0)),
    Part.LineSegment(Vector(8.1, -50, 0), Vector(8.1, -47, 0)),
], False)
sketch8.addConstraint([
    Sketcher.Constraint("Coincident", 0, 2, 1, 1),
    Sketcher.Constraint("Coincident", 1, 2, 2, 1),
    Sketcher.Constraint("Coincident", 2, 2, 3, 1),
    Sketcher.Constraint("Coincident", 3, 2, 0, 1),
    Sketcher.Constraint("Horizontal", 0),
    Sketcher.Constraint("Vertical", 1),
    Sketcher.Constraint("Horizontal", 2),
    Sketcher.Constraint("Vertical", 3),
    Sketcher.Constraint("DistanceY", 1, 2, 1, 1, Q("3 mm")),
    Sketcher.Constraint("DistanceX", -1, 1, 0, 2, Q("3 mm")),
    Sketcher.Constraint("DistanceY", 0, 2, -1, 1, Q("47 mm")),
    Sketcher.Constraint("DistanceX", 0, 2, 0, 1, Q("5.066594 mm")),
])
sketch8.setExpression("Constraints[8]", "Params.sketch8_height")
pad5 = doc.addObject("PartDesign::Pad", "Pad004")
body.addObject(pad5)
pad5.Profile = sketch8
pad5.setExpression("Length", "Params.pad5_length")

doc.recompute()
